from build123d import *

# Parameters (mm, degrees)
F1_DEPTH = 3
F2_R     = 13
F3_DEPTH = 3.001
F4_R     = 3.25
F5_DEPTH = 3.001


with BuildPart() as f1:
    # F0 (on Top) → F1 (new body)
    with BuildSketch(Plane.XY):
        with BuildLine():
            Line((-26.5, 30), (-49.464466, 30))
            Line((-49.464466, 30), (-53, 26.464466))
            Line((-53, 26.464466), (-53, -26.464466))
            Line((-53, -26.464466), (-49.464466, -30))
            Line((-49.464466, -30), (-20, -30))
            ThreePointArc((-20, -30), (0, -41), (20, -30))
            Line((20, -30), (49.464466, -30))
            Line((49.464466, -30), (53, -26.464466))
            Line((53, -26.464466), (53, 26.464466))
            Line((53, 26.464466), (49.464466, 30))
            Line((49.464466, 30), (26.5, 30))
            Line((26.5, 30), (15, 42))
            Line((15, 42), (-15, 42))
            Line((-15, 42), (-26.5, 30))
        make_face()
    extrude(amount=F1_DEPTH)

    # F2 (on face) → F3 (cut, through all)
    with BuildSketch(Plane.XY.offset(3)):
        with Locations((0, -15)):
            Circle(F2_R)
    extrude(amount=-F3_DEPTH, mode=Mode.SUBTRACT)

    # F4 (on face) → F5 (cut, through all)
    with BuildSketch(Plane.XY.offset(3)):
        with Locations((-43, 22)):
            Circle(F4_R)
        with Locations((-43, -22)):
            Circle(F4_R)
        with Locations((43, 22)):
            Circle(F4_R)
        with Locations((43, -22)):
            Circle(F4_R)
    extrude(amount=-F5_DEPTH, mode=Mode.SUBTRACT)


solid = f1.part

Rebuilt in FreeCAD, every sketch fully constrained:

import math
import FreeCAD as App
import Part
import Sketcher

doc = App.newDocument("Part")
params = doc.addObject("Spreadsheet::Sheet", "Params")
for row, (alias, value) in enumerate([
    ("sketch1_width", "30 mm"),
    ("sketch1_length", "5 mm"),
    ("pad1_length", "3 mm"),
    ("sketch2_diameter", "26 mm"),
    ("sketch3_diameter", "6.5 mm"),
], start=1):
    params.set(f"A{row}", alias)
    params.set(f"B{row}", "=" + value)
    params.setAlias(f"B{row}", alias)

body = doc.addObject("PartDesign::Body", "Body")

# Sketch on XY plane
sketch1 = body.newObject("Sketcher::SketchObject", "Sketch")
sketch1.AttachmentSupport = (doc.getObject("XY_Plane"), [""])
sketch1.MapMode = "FlatFace"
sketch1.addGeometry(Part.LineSegment(App.Vector(-26.5, 30, 0), App.Vector(-49.464466, 30, 0)), False)
sketch1.addGeometry(Part.LineSegment(App.Vector(-49.464466, 30, 0), App.Vector(-53, 26.464466, 0)), False)
sketch1.addGeometry(Part.LineSegment(App.Vector(-53, 26.464466, 0), App.Vector(-53, -26.464466, 0)), False)
sketch1.addGeometry(Part.LineSegment(App.Vector(-53, -26.464466, 0), App.Vector(-49.464466, -30, 0)), False)
sketch1.addGeometry(Part.LineSegment(App.Vector(-49.464466, -30, 0), App.Vector(-20, -30, 0)), False)
sketch1.addGeometry(Part.ArcOfCircle(Part.Circle(App.Vector(0, -17.318182, 0), App.Vector(0, 0, 1), 23.681818), math.radians(-147.621587), math.radians(-32.378413)), False)
sketch1.addGeometry(Part.LineSegment(App.Vector(20, -30, 0), App.Vector(49.464466, -30, 0)), False)
sketch1.addGeometry(Part.LineSegment(App.Vector(49.464466, -30, 0), App.Vector(53, -26.464466, 0)), False)
sketch1.addGeometry(Part.LineSegment(App.Vector(53, -26.464466, 0), App.Vector(53, 26.464466, 0)), False)
sketch1.addGeometry(Part.LineSegment(App.Vector(53, 26.464466, 0), App.Vector(49.464466, 30, 0)), False)
sketch1.addGeometry(Part.LineSegment(App.Vector(49.464466, 30, 0), App.Vector(26.5, 30, 0)), False)
sketch1.addGeometry(Part.LineSegment(App.Vector(26.5, 30, 0), App.Vector(15, 42, 0)), False)
sketch1.addGeometry(Part.LineSegment(App.Vector(15, 42, 0), App.Vector(-15, 42, 0)), False)
sketch1.addGeometry(Part.LineSegment(App.Vector(-15, 42, 0), App.Vector(-26.5, 30, 0)), False)
sketch1.addConstraint(Sketcher.Constraint("Coincident", 0, 2, 1, 1))
sketch1.addConstraint(Sketcher.Constraint("Coincident", 1, 2, 2, 1))
sketch1.addConstraint(Sketcher.Constraint("Coincident", 2, 2, 3, 1))
sketch1.addConstraint(Sketcher.Constraint("Coincident", 3, 2, 4, 1))
sketch1.addConstraint(Sketcher.Constraint("Coincident", 4, 2, 5, 1))
sketch1.addConstraint(Sketcher.Constraint("Coincident", 5, 2, 6, 1))
sketch1.addConstraint(Sketcher.Constraint("Coincident", 6, 2, 7, 1))
sketch1.addConstraint(Sketcher.Constraint("Coincident", 7, 2, 8, 1))
sketch1.addConstraint(Sketcher.Constraint("Coincident", 8, 2, 9, 1))
sketch1.addConstraint(Sketcher.Constraint("Coincident", 9, 2, 10, 1))
sketch1.addConstraint(Sketcher.Constraint("Coincident", 10, 2, 11, 1))
sketch1.addConstraint(Sketcher.Constraint("Coincident", 11, 2, 12, 1))
sketch1.addConstraint(Sketcher.Constraint("Coincident", 12, 2, 13, 1))
sketch1.addConstraint(Sketcher.Constraint("Coincident", 13, 2, 0, 1))
sketch1.addConstraint(Sketcher.Constraint("Horizontal", 0))
sketch1.addConstraint(Sketcher.Constraint("Vertical", 2))
sketch1.addConstraint(Sketcher.Constraint("Horizontal", 4))
sketch1.addConstraint(Sketcher.Constraint("Horizontal", 6))
sketch1.addConstraint(Sketcher.Constraint("Vertical", 8))
sketch1.addConstraint(Sketcher.Constraint("Horizontal", 10))
sketch1.addConstraint(Sketcher.Constraint("Horizontal", 12))
sketch1.addConstraint(Sketcher.Constraint("Symmetric", 0, 2, 6, 2, -1, 1))
sketch1.addConstraint(Sketcher.Constraint("Symmetric", 1, 2, 7, 2, -1, 1))
sketch1.addConstraint(Sketcher.Constraint("Symmetric", 3, 2, 9, 2, -1, 1))
sketch1.addConstraint(Sketcher.Constraint("Symmetric", 4, 2, 5, 2, -2))
sketch1.addConstraint(Sketcher.Constraint("Perpendicular", 1, 3))
sketch1.addConstraint(Sketcher.Constraint("Perpendicular", 7, 9))
sketch1.addConstraint(Sketcher.Constraint("Horizontal", 2, 2, 7, 2))
sketch1.addConstraint(Sketcher.Constraint("Vertical", 0, 2, 3, 2))
sketch1.addConstraint(Sketcher.Constraint("Equal", 0, 10))
sketch1.addConstraint(Sketcher.Constraint("Equal", 11, 13))
sketch1.addConstraint(Sketcher.Constraint("DistanceX", 12, 2, 12, 1, 30.0))
sketch1.addConstraint(Sketcher.Constraint("Distance", 1, 5.0))
sketch1.addConstraint(Sketcher.Constraint("DistanceY", -1, 1, 0, 2, 30.0))
sketch1.addConstraint(Sketcher.Constraint("DistanceX", 1, 2, -1, 1, 53.0))
sketch1.addConstraint(Sketcher.Constraint("DistanceX", 4, 2, -1, 1, 20.0))
sketch1.addConstraint(Sketcher.Constraint("DistanceY", -1, 1, 11, 2, 42.0))
sketch1.addConstraint(Sketcher.Constraint("DistanceX", 13, 2, 10, 2, 53.0))
sketch1.addConstraint(Sketcher.Constraint("Radius", 5, 23.681818))
sketch1.setExpression("Constraints[31]", "Params.sketch1_width")
sketch1.setExpression("Constraints[32]", "Params.sketch1_length")
pad1 = body.newObject("PartDesign::Pad", "Pad")
pad1.Profile = sketch1
pad1.setExpression("Length", "Params.pad1_length")

# Sketch on XY plane
sketch2 = body.newObject("Sketcher::SketchObject", "Sketch001")
sketch2.AttachmentSupport = (doc.getObject("XY_Plane"), [""])
sketch2.MapMode = "FlatFace"
sketch2.AttachmentOffset = App.Placement(App.Vector(0, 0, 3), App.Rotation())
sketch2.addGeometry(Part.Circle(App.Vector(0, -15, 0), App.Vector(0, 0, 1), 13), False)
sketch2.addConstraint(Sketcher.Constraint("PointOnObject", 0, 3, -2))
sketch2.addConstraint(Sketcher.Constraint("Diameter", 0, 26.0))
sketch2.addConstraint(Sketcher.Constraint("DistanceY", 0, 3, -1, 1, 15.0))
sketch2.setExpression("Constraints[1]", "Params.sketch2_diameter")
pocket1 = body.newObject("PartDesign::Pocket", "Pocket")
pocket1.Profile = sketch2
pocket1.Type = "ThroughAll"

# Sketch on XY plane
sketch3 = body.newObject("Sketcher::SketchObject", "Sketch002")
sketch3.AttachmentSupport = (doc.getObject("XY_Plane"), [""])
sketch3.MapMode = "FlatFace"
sketch3.AttachmentOffset = App.Placement(App.Vector(0, 0, 3), App.Rotation())
sketch3.addGeometry(Part.Circle(App.Vector(-43, 22, 0), App.Vector(0, 0, 1), 3.25), False)
sketch3.addGeometry(Part.Circle(App.Vector(-43, -22, 0), App.Vector(0, 0, 1), 3.25), False)
sketch3.addGeometry(Part.Circle(App.Vector(43, 22, 0), App.Vector(0, 0, 1), 3.25), False)
sketch3.addGeometry(Part.Circle(App.Vector(43, -22, 0), App.Vector(0, 0, 1), 3.25), False)
sketch3.addConstraint(Sketcher.Constraint("Equal", 0, 1))
sketch3.addConstraint(Sketcher.Constraint("Equal", 1, 2))
sketch3.addConstraint(Sketcher.Constraint("Equal", 2, 3))
sketch3.addConstraint(Sketcher.Constraint("Symmetric", 1, 3, 2, 3, -1, 1))
sketch3.addConstraint(Sketcher.Constraint("Symmetric", 0, 3, 3, 3, -1, 1))
sketch3.addConstraint(Sketcher.Constraint("Symmetric", 0, 3, 2, 3, -2))
sketch3.addConstraint(Sketcher.Constraint("Diameter", 0, 6.5))
sketch3.addConstraint(Sketcher.Constraint("DistanceX", 0, 3, -1, 1, 43.0))
sketch3.addConstraint(Sketcher.Constraint("DistanceY", -1, 1, 0, 3, 22.0))
sketch3.setExpression("Constraints[6]", "Params.sketch3_diameter")
pocket2 = body.newObject("PartDesign::Pocket", "Pocket001")
pocket2.Profile = sketch3
pocket2.Type = "ThroughAll"

doc.recompute()
